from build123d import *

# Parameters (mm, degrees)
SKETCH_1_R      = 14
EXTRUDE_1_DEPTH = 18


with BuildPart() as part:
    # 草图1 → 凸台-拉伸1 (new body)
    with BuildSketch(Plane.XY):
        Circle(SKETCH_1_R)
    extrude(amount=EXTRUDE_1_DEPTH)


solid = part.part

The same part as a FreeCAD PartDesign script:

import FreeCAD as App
import Part
import Sketcher

V = App.Vector
Q = App.Units.Quantity

doc = App.newDocument("Part")
params = doc.addObject("Spreadsheet::Sheet", "Params")
for row, (alias, value) in enumerate([
    ("sketch1_diameter", "28 mm"),
    ("pad1_length", "18 mm"),
], start=1):
    params.set(f"A{row}", alias)
    params.set(f"B{row}", "=" + value)
    params.setAlias(f"B{row}", alias)

body = doc.addObject("PartDesign::Body", "Body")

# Sketch on XY plane
sketch1 = body.newObject("Sketcher::SketchObject", "Sketch")
sketch1.AttachmentSupport = (doc.getObject("XY_Plane"), [""])
sketch1.MapMode = "FlatFace"
sketch1.addGeometry(Part.Circle(V(0, 0, 0), V(0, 0, 1), 14), False)
sketch1.addConstraint(Sketcher.Constraint("Coincident", 0, 3, -1, 1))
sketch1.addConstraint(Sketcher.Constraint("Diameter", 0, Q("28 mm")))
sketch1.setExpression("Constraints[1]", "Params.sketch1_diameter")
pad1 = body.newObject("PartDesign::Pad", "Pad")
pad1.Profile = sketch1
pad1.setExpression("Length", "Params.pad1_length")

doc.recompute()
